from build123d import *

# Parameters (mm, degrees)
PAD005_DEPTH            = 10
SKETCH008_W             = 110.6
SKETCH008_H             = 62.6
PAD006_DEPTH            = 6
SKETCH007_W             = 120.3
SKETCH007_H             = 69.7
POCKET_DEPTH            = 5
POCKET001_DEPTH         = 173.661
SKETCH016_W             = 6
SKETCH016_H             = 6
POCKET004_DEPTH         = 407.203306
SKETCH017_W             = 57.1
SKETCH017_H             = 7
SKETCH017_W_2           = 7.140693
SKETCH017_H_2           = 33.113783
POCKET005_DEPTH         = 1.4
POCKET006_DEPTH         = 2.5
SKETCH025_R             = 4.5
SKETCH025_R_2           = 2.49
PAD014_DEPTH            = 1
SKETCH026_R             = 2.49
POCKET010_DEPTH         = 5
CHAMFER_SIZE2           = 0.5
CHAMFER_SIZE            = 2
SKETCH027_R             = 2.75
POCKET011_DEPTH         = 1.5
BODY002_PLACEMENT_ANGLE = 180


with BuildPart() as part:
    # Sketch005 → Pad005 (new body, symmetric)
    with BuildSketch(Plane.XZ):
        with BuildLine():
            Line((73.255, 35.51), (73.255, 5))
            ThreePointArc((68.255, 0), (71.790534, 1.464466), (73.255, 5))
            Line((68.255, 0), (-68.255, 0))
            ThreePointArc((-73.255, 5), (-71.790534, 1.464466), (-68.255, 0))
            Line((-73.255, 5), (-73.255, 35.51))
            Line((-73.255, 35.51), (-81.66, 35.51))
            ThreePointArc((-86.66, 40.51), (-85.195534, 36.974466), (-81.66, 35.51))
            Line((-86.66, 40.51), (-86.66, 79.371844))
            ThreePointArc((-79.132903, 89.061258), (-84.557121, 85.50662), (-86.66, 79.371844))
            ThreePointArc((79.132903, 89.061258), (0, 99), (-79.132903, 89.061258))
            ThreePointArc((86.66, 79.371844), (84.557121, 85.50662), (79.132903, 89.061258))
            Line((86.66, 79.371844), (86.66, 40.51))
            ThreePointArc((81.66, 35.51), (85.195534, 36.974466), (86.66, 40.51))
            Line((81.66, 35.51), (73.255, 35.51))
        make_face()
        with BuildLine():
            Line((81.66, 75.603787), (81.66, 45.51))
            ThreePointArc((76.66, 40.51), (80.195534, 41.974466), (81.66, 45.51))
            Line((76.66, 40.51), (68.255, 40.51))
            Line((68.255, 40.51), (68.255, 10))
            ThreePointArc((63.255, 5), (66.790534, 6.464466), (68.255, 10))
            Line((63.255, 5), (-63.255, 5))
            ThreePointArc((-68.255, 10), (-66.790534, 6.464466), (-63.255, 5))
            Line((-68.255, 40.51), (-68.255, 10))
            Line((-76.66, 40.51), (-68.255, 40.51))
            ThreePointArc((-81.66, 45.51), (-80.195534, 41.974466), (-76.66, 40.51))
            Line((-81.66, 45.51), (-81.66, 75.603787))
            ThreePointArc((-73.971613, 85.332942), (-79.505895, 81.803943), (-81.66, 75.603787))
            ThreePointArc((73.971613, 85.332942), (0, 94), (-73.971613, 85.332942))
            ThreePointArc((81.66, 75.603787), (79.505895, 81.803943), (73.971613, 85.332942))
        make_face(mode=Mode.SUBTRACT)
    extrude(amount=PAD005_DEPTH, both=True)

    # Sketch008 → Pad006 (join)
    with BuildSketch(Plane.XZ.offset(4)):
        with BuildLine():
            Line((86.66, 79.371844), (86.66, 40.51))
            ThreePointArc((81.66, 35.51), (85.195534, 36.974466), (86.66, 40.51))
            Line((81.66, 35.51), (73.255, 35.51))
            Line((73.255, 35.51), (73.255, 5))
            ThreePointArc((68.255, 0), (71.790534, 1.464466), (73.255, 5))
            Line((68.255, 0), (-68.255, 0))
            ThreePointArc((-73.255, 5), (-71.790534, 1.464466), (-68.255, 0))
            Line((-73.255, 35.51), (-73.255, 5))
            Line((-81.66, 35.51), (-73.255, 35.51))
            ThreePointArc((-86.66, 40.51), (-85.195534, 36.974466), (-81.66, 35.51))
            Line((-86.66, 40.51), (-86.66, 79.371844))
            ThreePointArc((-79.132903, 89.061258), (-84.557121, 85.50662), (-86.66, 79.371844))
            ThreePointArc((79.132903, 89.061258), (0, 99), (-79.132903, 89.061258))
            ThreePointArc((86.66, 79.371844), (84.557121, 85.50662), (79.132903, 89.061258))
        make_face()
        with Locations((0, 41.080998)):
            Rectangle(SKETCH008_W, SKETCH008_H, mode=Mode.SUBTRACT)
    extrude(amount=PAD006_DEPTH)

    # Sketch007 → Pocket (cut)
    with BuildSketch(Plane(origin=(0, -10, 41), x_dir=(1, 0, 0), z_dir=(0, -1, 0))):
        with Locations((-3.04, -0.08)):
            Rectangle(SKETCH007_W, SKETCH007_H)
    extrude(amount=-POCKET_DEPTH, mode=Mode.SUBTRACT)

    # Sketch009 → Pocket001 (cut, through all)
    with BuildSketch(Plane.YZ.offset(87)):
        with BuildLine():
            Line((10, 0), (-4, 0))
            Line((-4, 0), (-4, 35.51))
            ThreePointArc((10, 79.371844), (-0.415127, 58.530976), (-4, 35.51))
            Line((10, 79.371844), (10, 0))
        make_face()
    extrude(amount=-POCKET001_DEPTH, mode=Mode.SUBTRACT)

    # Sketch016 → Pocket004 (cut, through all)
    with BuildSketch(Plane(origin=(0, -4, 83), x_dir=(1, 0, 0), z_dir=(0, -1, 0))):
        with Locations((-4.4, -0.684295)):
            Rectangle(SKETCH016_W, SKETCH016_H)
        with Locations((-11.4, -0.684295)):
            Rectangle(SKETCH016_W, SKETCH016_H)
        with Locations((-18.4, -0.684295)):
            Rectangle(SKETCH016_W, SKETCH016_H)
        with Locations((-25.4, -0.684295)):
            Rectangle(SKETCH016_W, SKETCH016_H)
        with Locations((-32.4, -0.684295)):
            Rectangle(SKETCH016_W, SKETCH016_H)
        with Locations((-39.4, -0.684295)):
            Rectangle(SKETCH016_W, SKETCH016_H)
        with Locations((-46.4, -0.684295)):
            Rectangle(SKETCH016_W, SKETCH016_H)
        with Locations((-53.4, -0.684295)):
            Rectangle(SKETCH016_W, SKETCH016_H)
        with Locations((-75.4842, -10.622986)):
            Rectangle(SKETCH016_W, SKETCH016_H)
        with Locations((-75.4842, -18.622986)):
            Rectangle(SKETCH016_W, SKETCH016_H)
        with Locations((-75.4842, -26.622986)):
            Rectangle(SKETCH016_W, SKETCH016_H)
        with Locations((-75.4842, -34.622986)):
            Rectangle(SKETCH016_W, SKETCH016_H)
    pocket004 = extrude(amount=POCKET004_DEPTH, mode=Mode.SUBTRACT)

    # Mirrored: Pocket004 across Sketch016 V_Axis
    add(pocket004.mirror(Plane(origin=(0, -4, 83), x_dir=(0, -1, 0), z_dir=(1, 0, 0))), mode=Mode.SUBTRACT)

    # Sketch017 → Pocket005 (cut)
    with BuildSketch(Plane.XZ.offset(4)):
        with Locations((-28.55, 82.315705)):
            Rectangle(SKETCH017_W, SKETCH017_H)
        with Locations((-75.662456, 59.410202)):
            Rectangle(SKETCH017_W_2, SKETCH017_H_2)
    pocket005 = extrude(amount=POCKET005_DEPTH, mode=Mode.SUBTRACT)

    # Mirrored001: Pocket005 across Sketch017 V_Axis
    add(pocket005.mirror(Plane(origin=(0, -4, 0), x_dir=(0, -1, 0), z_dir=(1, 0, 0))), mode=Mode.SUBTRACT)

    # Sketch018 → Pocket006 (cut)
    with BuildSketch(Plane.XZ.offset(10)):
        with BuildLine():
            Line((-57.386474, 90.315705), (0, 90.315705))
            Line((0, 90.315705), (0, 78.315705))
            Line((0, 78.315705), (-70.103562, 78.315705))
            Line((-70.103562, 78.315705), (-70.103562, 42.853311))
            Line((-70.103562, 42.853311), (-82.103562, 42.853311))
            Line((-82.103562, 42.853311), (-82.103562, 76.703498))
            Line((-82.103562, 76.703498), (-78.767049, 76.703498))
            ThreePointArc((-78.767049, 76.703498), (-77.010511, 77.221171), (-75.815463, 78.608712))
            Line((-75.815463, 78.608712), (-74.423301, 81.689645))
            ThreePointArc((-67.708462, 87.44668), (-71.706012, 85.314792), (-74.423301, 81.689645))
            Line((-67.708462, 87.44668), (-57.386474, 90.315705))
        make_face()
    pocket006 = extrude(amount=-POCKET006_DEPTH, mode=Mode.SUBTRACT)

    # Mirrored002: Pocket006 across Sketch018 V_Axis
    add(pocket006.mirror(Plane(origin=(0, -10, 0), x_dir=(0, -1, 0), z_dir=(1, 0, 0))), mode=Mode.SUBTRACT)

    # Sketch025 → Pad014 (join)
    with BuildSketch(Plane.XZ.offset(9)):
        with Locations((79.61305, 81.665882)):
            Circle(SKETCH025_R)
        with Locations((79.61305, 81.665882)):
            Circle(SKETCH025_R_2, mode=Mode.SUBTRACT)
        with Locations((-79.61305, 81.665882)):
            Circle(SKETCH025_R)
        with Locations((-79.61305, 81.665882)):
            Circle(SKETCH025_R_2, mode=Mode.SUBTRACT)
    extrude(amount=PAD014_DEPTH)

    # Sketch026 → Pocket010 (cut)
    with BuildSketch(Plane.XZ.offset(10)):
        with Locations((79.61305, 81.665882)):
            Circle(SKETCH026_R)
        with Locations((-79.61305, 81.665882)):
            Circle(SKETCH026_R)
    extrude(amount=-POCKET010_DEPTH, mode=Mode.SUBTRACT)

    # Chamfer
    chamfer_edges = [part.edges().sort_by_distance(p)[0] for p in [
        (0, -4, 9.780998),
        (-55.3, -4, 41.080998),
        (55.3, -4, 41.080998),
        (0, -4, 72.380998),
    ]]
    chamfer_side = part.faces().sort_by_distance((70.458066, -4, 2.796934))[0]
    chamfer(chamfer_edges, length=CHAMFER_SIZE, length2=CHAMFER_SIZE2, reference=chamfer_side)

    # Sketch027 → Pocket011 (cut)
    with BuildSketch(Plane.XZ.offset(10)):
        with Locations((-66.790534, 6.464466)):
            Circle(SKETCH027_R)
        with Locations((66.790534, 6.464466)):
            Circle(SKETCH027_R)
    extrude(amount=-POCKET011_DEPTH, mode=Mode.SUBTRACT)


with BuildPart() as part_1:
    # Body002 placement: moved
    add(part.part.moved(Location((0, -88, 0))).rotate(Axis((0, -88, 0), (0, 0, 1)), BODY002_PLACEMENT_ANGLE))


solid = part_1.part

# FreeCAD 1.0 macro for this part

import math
import FreeCAD as App
import Part
import Sketcher
from FreeCAD import Vector
Q = App.Units.Quantity


def edges_at(feature, points):
    """Names of the edges that pass closest to the given points."""
    edges = feature.Shape.Edges
    near = lambda p: min(range(len(edges)), key=lambda i: edges[i].distToShape(Part.Vertex(*p))[0])
    return sorted({f"Edge{near(p) + 1}" for p in points})

doc = App.newDocument("Part")
body = doc.addObject("PartDesign::Body", "Body")

# Sketch on XZ plane
sketch1 = doc.addObject("Sketcher::SketchObject", "Sketch")
body.addObject(sketch1)
sketch1.AttachmentSupport = (doc.XZ_Plane, [""])
sketch1.MapMode = "FlatFace"
sketch1.addGeometry([
    Part.LineSegment(Vector(73.255, 5, 0), Vector(73.255, 35.51, 0)),  # 0
    Part.LineSegment(Vector(73.255, 35.51, 0), Vector(81.66, 35.51, 0)),  # 1
    Part.ArcOfCircle(Part.Circle(Vector(81.66, 40.51, 0), Vector(0, 0, 1), 5), math.radians(-90.000004), math.radians(0.000004)),  # 2
    Part.LineSegment(Vector(86.66, 40.51, 0), Vector(86.66, 79.371844, 0)),  # 3
    Part.ArcOfCircle(Part.Circle(Vector(76.66, 79.371844, 0), Vector(0, 0, 1), 10), math.radians(0.000001), math.radians(75.682777)),  # 4
    Part.ArcOfCircle(Part.Circle(Vector(0, -221.000003, 0), Vector(0, 0, 1), 320.000003), math.radians(75.682775), math.radians(104.317225)),  # 5
    Part.ArcOfCircle(Part.Circle(Vector(-76.66, 79.371844, 0), Vector(0, 0, 1), 10), math.radians(104.317223), math.radians(179.999999)),  # 6
    Part.LineSegment(Vector(-86.66, 79.371844, 0), Vector(-86.66, 40.51, 0)),  # 7
    Part.ArcOfCircle(Part.Circle(Vector(-81.66, 40.51, 0), Vector(0, 0, 1), 5), math.radians(179.999996), math.radians(270.000004)),  # 8
    Part.LineSegment(Vector(-81.66, 35.51, 0), Vector(-73.255, 35.51, 0)),  # 9
    Part.LineSegment(Vector(-73.255, 35.51, 0), Vector(-73.255, 5, 0)),  # 10
    Part.ArcOfCircle(Part.Circle(Vector(-68.255, 5, 0), Vector(0, 0, 1), 5), math.radians(179.999996), math.radians(270.000004)),  # 11
    Part.LineSegment(Vector(-68.255, 0, 0), Vector(68.255, 0, 0)),  # 12
    Part.ArcOfCircle(Part.Circle(Vector(68.255, 5, 0), Vector(0, 0, 1), 5), math.radians(-90.000004), math.radians(0.000004)),  # 13
    Part.LineSegment(Vector(81.66, 75.603787, 0), Vector(81.66, 45.51, 0)),  # 14
    Part.ArcOfCircle(Part.Circle(Vector(76.66, 45.51, 0), Vector(0, 0, 1), 5), math.radians(-90.000004), math.radians(0.000004)),  # 15
    Part.LineSegment(Vector(76.66, 40.51, 0), Vector(68.255, 40.51, 0)),  # 16
    Part.LineSegment(Vector(68.255, 40.51, 0), Vector(68.255, 10, 0)),  # 17
    Part.ArcOfCircle(Part.Circle(Vector(63.255, 10, 0), Vector(0, 0, 1), 5), math.radians(-90.000004), math.radians(0.000004)),  # 18
    Part.LineSegment(Vector(63.255, 5, 0), Vector(-63.255, 5, 0)),  # 19
    Part.ArcOfCircle(Part.Circle(Vector(-63.255, 10, 0), Vector(0, 0, 1), 5), math.radians(179.999996), math.radians(270.000004)),  # 20
    Part.LineSegment(Vector(-68.255, 10, 0), Vector(-68.255, 40.51, 0)),  # 21
    Part.LineSegment(Vector(-68.255, 40.51, 0), Vector(-76.66, 40.51, 0)),  # 22
    Part.ArcOfCircle(Part.Circle(Vector(-76.66, 45.51, 0), Vector(0, 0, 1), 5), math.radians(179.999996), math.radians(270.000004)),  # 23
    Part.LineSegment(Vector(-81.66, 45.51, 0), Vector(-81.66, 75.603787, 0)),  # 24
    Part.ArcOfCircle(Part.Circle(Vector(-71.659999, 75.603787, 0), Vector(0, 0, 1), 10.000001), math.radians(103.365456), math.radians(180)),  # 25
    Part.ArcOfCircle(Part.Circle(Vector(0, -226.000018, 0), Vector(0, 0, 1), 320.000018), math.radians(76.634549), math.radians(103.365451)),  # 26
    Part.ArcOfCircle(Part.Circle(Vector(71.659999, 75.603787, 0), Vector(0, 0, 1), 10.000001), math.radians(0), math.radians(76.634544)),  # 27
], False)
sketch1.addConstraint([
    Sketcher.Constraint("Coincident", 0, 2, 1, 1),
    Sketcher.Constraint("Tangent", 1, 2, 2, 1),
    Sketcher.Constraint("Tangent", 2, 2, 3, 1),
    Sketcher.Constraint("Tangent", 3, 2, 4, 1),
    Sketcher.Constraint("Tangent", 4, 2, 5, 1),
    Sketcher.Constraint("Tangent", 5, 2, 6, 1),
    Sketcher.Constraint("Tangent", 6, 2, 7, 1),
    Sketcher.Constraint("Tangent", 7, 2, 8, 1),
    Sketcher.Constraint("Tangent", 8, 2, 9, 1),
    Sketcher.Constraint("Coincident", 9, 2, 10, 1),
    Sketcher.Constraint("Tangent", 10, 2, 11, 1),
    Sketcher.Constraint("Tangent", 11, 2, 12, 1),
    Sketcher.Constraint("Tangent", 12, 2, 13, 1),
    Sketcher.Constraint("Tangent", 13, 2, 0, 1),
    Sketcher.Constraint("Tangent", 14, 2, 15, 2),
    Sketcher.Constraint("Tangent", 15, 1, 16, 1),
    Sketcher.Constraint("Coincident", 16, 2, 17, 1),
    Sketcher.Constraint("Tangent", 17, 2, 18, 2),
    Sketcher.Constraint("Tangent", 18, 1, 19, 1),
    Sketcher.Constraint("Tangent", 19, 2, 20, 2),
    Sketcher.Constraint("Tangent", 20, 1, 21, 1),
    Sketcher.Constraint("Coincident", 21, 2, 22, 1),
    Sketcher.Constraint("Tangent", 22, 2, 23, 2),
    Sketcher.Constraint("Tangent", 23, 1, 24, 1),
    Sketcher.Constraint("Tangent", 24, 2, 25, 2),
    Sketcher.Constraint("Tangent", 25, 1, 26, 2),
    Sketcher.Constraint("Tangent", 26, 1, 27, 2),
    Sketcher.Constraint("Tangent", 27, 1, 14, 1),
    Sketcher.Constraint("Vertical", 0),
    Sketcher.Constraint("Horizontal", 1),
    Sketcher.Constraint("Vertical", 3),
    Sketcher.Constraint("Vertical", 7),
    Sketcher.Constraint("Horizontal", 9),
    Sketcher.Constraint("Vertical", 10),
    Sketcher.Constraint("Horizontal", 12),
    Sketcher.Constraint("Vertical", 14),
    Sketcher.Constraint("Horizontal", 16),
    Sketcher.Constraint("Vertical", 17),
    Sketcher.Constraint("Horizontal", 19),
    Sketcher.Constraint("Vertical", 21),
    Sketcher.Constraint("Horizontal", 22),
    Sketcher.Constraint("Vertical", 24),
    Sketcher.Constraint("Equal", 4, 6),
    Sketcher.Constraint("Equal", 2, 8),
    Sketcher.Constraint("Equal", 8, 11),
    Sketcher.Constraint("Equal", 11, 13),
    Sketcher.Constraint("Equal", 13, 15),
    Sketcher.Constraint("Equal", 15, 18),
    Sketcher.Constraint("Equal", 18, 20),
    Sketcher.Constraint("Equal", 20, 23),
    Sketcher.Constraint("Equal", 6, 25),
    Sketcher.Constraint("Equal", 25, 27),
    Sketcher.Constraint("Symmetric", 11, 2, 12, 2, -1, 1),
    Sketcher.Constraint("Symmetric", 4, 3, 6, 3, -2),
    Sketcher.Constraint("Symmetric", 15, 3, 23, 3, -2),
    Sketcher.Constraint("PointOnObject", 26, 3, -2),
    Sketcher.Constraint("Horizontal", 2, 3, 8, 3),
    Sketcher.Constraint("Horizontal", 7, 2, 15, 1),
    Sketcher.Constraint("Horizontal", 13, 2, 18, 1),
    Sketcher.Constraint("Vertical", 4, 3, 15, 3),
    Sketcher.Constraint("Vertical", 1, 2, 14, 2),
    Sketcher.Constraint("Vertical", 12, 2, 16, 2),
    Sketcher.Constraint("Vertical", 11, 2, 20, 1),
    Sketcher.Constraint("Radius", 2, Q("5 mm")),
    Sketcher.Constraint("DistanceX", 12, 1, 12, 2, Q("136.51 mm")),
    Sketcher.Constraint("DistanceY", 0, 1, 0, 2, Q("30.51 mm")),
    Sketcher.Constraint("DistanceX", 1, 1, 1, 2, Q("8.405 mm")),
    Sketcher.Constraint("Radius", 5, Q("320.000003 mm")),
    Sketcher.Constraint("Radius", 26, Q("320.000018 mm")),
    Sketcher.Constraint("DistanceY", 6, 3, 25, 1, Q("5.961098 mm")),
    Sketcher.Constraint("DistanceY", 3, 1, 3, 2, Q("38.861844 mm")),
])
pad1 = doc.addObject("PartDesign::Pad", "Pad")
body.addObject(pad1)
pad1.Profile = sketch1
pad1.Length = 20
pad1.Midplane = True

# Sketch on XZ plane
sketch2 = doc.addObject("Sketcher::SketchObject", "Sketch001")
body.addObject(sketch2)
sketch2.AttachmentSupport = (doc.XZ_Plane, [""])
sketch2.MapMode = "FlatFace"
sketch2.AttachmentOffset = App.Placement(Vector(0, 0, 4), App.Rotation())
sketch2.addGeometry([
    Part.LineSegment(Vector(86.66, 40.51, 0), Vector(86.66, 79.371844, 0)),  # 0
    Part.ArcOfCircle(Part.Circle(Vector(76.66, 79.371844, 0), Vector(0, 0, 1), 10), math.radians(0.000001), math.radians(75.682777)),  # 1
    Part.ArcOfCircle(Part.Circle(Vector(0, -221.000003, 0), Vector(0, 0, 1), 320.000003), math.radians(75.682775), math.radians(104.317225)),  # 2
    Part.ArcOfCircle(Part.Circle(Vector(-76.66, 79.371844, 0), Vector(0, 0, 1), 10), math.radians(104.317223), math.radians(179.999999)),  # 3
    Part.LineSegment(Vector(-86.66, 79.371844, 0), Vector(-86.66, 40.51, 0)),  # 4
    Part.ArcOfCircle(Part.Circle(Vector(-81.66, 40.51, 0), Vector(0, 0, 1), 5), math.radians(179.999996), math.radians(270.000004)),  # 5
    Part.LineSegment(Vector(-81.66, 35.51, 0), Vector(-73.255, 35.51, 0)),  # 6
    Part.LineSegment(Vector(-73.255, 35.51, 0), Vector(-73.255, 5, 0)),  # 7
    Part.ArcOfCircle(Part.Circle(Vector(-68.255, 5, 0), Vector(0, 0, 1), 5), math.radians(179.999996), math.radians(270.000004)),  # 8
    Part.LineSegment(Vector(-68.255, 0, 0), Vector(68.255, 0, 0)),  # 9
    Part.ArcOfCircle(Part.Circle(Vector(68.255, 5, 0), Vector(0, 0, 1), 5), math.radians(-90.000004), math.radians(0.000004)),  # 10
    Part.LineSegment(Vector(73.255, 5, 0), Vector(73.255, 35.51, 0)),  # 11
    Part.LineSegment(Vector(73.255, 35.51, 0), Vector(81.66, 35.51, 0)),  # 12
    Part.ArcOfCircle(Part.Circle(Vector(81.66, 40.51, 0), Vector(0, 0, 1), 5), math.radians(-90.000004), math.radians(0.000004)),  # 13
    Part.LineSegment(Vector(-55.3, 9.780998, 0), Vector(-55.3, 72.380998, 0)),  # 14
    Part.LineSegment(Vector(-55.3, 72.380998, 0), Vector(55.3, 72.380998, 0)),  # 15
    Part.LineSegment(Vector(55.3, 72.380998, 0), Vector(55.3, 9.780998, 0)),  # 16
    Part.LineSegment(Vector(55.3, 9.780998, 0), Vector(-55.3, 9.780998, 0)),  # 17
], False)
sketch2.addConstraint([
    Sketcher.Constraint("Tangent", 0, 2, 1, 1),
    Sketcher.Constraint("Tangent", 1, 2, 2, 1),
    Sketcher.Constraint("Tangent", 2, 2, 3, 1),
    Sketcher.Constraint("Tangent", 3, 2, 4, 1),
    Sketcher.Constraint("Tangent", 4, 2, 5, 1),
    Sketcher.Constraint("Tangent", 5, 2, 6, 1),
    Sketcher.Constraint("Coincident", 6, 2, 7, 1),
    Sketcher.Constraint("Tangent", 7, 2, 8, 1),
    Sketcher.Constraint("Tangent", 8, 2, 9, 1),
    Sketcher.Constraint("Tangent", 9, 2, 10, 1),
    Sketcher.Constraint("Tangent", 10, 2, 11, 1),
    Sketcher.Constraint("Coincident", 11, 2, 12, 1),
    Sketcher.Constraint("Tangent", 12, 2, 13, 1),
    Sketcher.Constraint("Tangent", 13, 2, 0, 1),
    Sketcher.Constraint("Coincident", 14, 2, 15, 1),
    Sketcher.Constraint("Coincident", 15, 2, 16, 1),
    Sketcher.Constraint("Coincident", 16, 2, 17, 1),
    Sketcher.Constraint("Coincident", 17, 2, 14, 1),
    Sketcher.Constraint("Vertical", 0),
    Sketcher.Constraint("Vertical", 4),
    Sketcher.Constraint("Horizontal", 6),
    Sketcher.Constraint("Vertical", 7),
    Sketcher.Constraint("Horizontal", 9),
    Sketcher.Constraint("Vertical", 11),
    Sketcher.Constraint("Horizontal", 12),
    Sketcher.Constraint("Vertical", 14),
    Sketcher.Constraint("Horizontal", 15),
    Sketcher.Constraint("Vertical", 16),
    Sketcher.Constraint("Horizontal", 17),
    Sketcher.Constraint("Equal", 1, 3),
    Sketcher.Constraint("Equal", 5, 8),
    Sketcher.Constraint("Equal", 8, 10),
    Sketcher.Constraint("Equal", 10, 13),
    Sketcher.Constraint("Symmetric", 8, 2, 9, 2, -1, 1),
    Sketcher.Constraint("Symmetric", 1, 3, 3, 3, -2),
    Sketcher.Constraint("Horizontal", 5, 3, 13, 3),
    Sketcher.Constraint("Radius", 1, Q("10 mm")),
    Sketcher.Constraint("Radius", 5, Q("5 mm")),
    Sketcher.Constraint("DistanceX", 15, 1, 15, 2, Q("110.6 mm")),
    Sketcher.Constraint("DistanceY", 14, 1, 14, 2, Q("62.6 mm")),
    Sketcher.Constraint("DistanceX", 9, 1, 9, 2, Q("136.51 mm")),
    Sketcher.Constraint("DistanceY", 7, 2, 7, 1, Q("30.51 mm")),
    Sketcher.Constraint("DistanceX", 14, 2, -1, 1, Q("55.3 mm")),
    Sketcher.Constraint("DistanceX", 6, 1, 6, 2, Q("8.405 mm")),
    Sketcher.Constraint("DistanceY", -1, 1, 14, 2, Q("72.380998 mm")),
    Sketcher.Constraint("Radius", 2, Q("320.000003 mm")),
    Sketcher.Constraint("DistanceY", 0, 1, 0, 2, Q("38.861844 mm")),
])
pad2 = doc.addObject("PartDesign::Pad", "Pad001")
body.addObject(pad2)
pad2.Profile = sketch2
pad2.Length = 6

# Sketch on XZ plane
sketch3 = doc.addObject("Sketcher::SketchObject", "Sketch002")
body.addObject(sketch3)
sketch3.AttachmentSupport = (doc.XZ_Plane, [""])
sketch3.MapMode = "FlatFace"
sketch3.AttachmentOffset = App.Placement(Vector(0, 0, 10), App.Rotation())
sketch3.addGeometry([
    Part.LineSegment(Vector(-63.19, 75.77, 0), Vector(-63.19, 6.07, 0)),
    Part.LineSegment(Vector(-63.19, 6.07, 0), Vector(57.11, 6.07, 0)),
    Part.LineSegment(Vector(57.11, 6.07, 0), Vector(57.11, 75.77, 0)),
    Part.LineSegment(Vector(57.11, 75.77, 0), Vector(-63.19, 75.77, 0)),
], False)
sketch3.addConstraint([
    Sketcher.Constraint("Coincident", 0, 2, 1, 1),
    Sketcher.Constraint("Coincident", 1, 2, 2, 1),
    Sketcher.Constraint("Coincident", 2, 2, 3, 1),
    Sketcher.Constraint("Coincident", 3, 2, 0, 1),
    Sketcher.Constraint("Vertical", 0),
    Sketcher.Constraint("Horizontal", 1),
    Sketcher.Constraint("Vertical", 2),
    Sketcher.Constraint("Horizontal", 3),
    Sketcher.Constraint("DistanceX", 1, 1, 1, 2, Q("120.3 mm")),
    Sketcher.Constraint("DistanceY", 0, 2, 0, 1, Q("69.7 mm")),
    Sketcher.Constraint("DistanceX", 0, 2, -1, 1, Q("63.19 mm")),
    Sketcher.Constraint("DistanceY", -1, 1, 0, 2, Q("6.07 mm")),
])
pocket1 = doc.addObject("PartDesign::Pocket", "Pocket")
body.addObject(pocket1)
pocket1.Profile = sketch3
pocket1.Length = 5

# Sketch on YZ plane
sketch4 = doc.addObject("Sketcher::SketchObject", "Sketch003")
body.addObject(sketch4)
sketch4.AttachmentSupport = (doc.YZ_Plane, [""])
sketch4.MapMode = "FlatFace"
sketch4.AttachmentOffset = App.Placement(Vector(0, 0, 87), App.Rotation())
sketch4.addGeometry([
    Part.LineSegment(Vector(-4, 0, 0), Vector(10, 0, 0)),
    Part.LineSegment(Vector(10, 0, 0), Vector(10, 79.371844, 0)),
    Part.ArcOfCircle(Part.Circle(Vector(71.70934, 35.509998, 0), Vector(0, 0, 1), 75.70934), math.radians(144.595497), math.radians(179.999999)),
    Part.LineSegment(Vector(-4, 35.51, 0), Vector(-4, 0, 0)),
], False)
sketch4.addConstraint([
    Sketcher.Constraint("Coincident", 0, 2, 1, 1),
    Sketcher.Constraint("Coincident", 1, 2, 2, 1),
    Sketcher.Constraint("Tangent", 2, 2, 3, 1),
    Sketcher.Constraint("Coincident", 3, 2, 0, 1),
    Sketcher.Constraint("Horizontal", 0),
    Sketcher.Constraint("Vertical", 1),
    Sketcher.Constraint("Vertical", 3),
    Sketcher.Constraint("PointOnObject", 0, 2, -1),
    Sketcher.Constraint("DistanceX", 0, 1, 0, 2, Q("14 mm")),
    Sketcher.Constraint("DistanceX", -1, 1, 0, 2, Q("10 mm")),
    Sketcher.Constraint("DistanceY", 3, 2, 3, 1, Q("35.51 mm")),
    Sketcher.Constraint("Radius", 2, Q("75.70934 mm")),
])
pocket2 = doc.addObject("PartDesign::Pocket", "Pocket001")
body.addObject(pocket2)
pocket2.Profile = sketch4
pocket2.Type = "ThroughAll"

# Sketch on XZ plane
sketch5 = doc.addObject("Sketcher::SketchObject", "Sketch004")
body.addObject(sketch5)
sketch5.AttachmentSupport = (doc.XZ_Plane, [""])
sketch5.MapMode = "FlatFace"
sketch5.AttachmentOffset = App.Placement(Vector(0, 0, 4), App.Rotation())
sketch5.addGeometry([
    Part.LineSegment(Vector(-7.4, 85.315705, 0), Vector(-7.4, 79.315705, 0)),  # 0
    Part.LineSegment(Vector(-7.4, 79.315705, 0), Vector(-1.4, 79.315705, 0)),  # 1
    Part.LineSegment(Vector(-1.4, 79.315705, 0), Vector(-1.4, 85.315705, 0)),  # 2
    Part.LineSegment(Vector(-1.4, 85.315705, 0), Vector(-7.4, 85.315705, 0)),  # 3
    Part.LineSegment(Vector(-14.4, 85.315705, 0), Vector(-14.4, 79.315705, 0)),  # 4
    Part.LineSegment(Vector(-14.4, 79.315705, 0), Vector(-8.4, 79.315705, 0)),  # 5
    Part.LineSegment(Vector(-8.4, 79.315705, 0), Vector(-8.4, 85.315705, 0)),  # 6
    Part.LineSegment(Vector(-8.4, 85.315705, 0), Vector(-14.4, 85.315705, 0)),  # 7
    Part.LineSegment(Vector(-21.4, 85.315705, 0), Vector(-21.4, 79.315705, 0)),  # 8
    Part.LineSegment(Vector(-21.4, 79.315705, 0), Vector(-15.4, 79.315705, 0)),  # 9
    Part.LineSegment(Vector(-15.4, 79.315705, 0), Vector(-15.4, 85.315705, 0)),  # 10
    Part.LineSegment(Vector(-15.4, 85.315705, 0), Vector(-21.4, 85.315705, 0)),  # 11
    Part.LineSegment(Vector(-28.4, 85.315705, 0), Vector(-28.4, 79.315705, 0)),  # 12
    Part.LineSegment(Vector(-28.4, 79.315705, 0), Vector(-22.4, 79.315705, 0)),  # 13
    Part.LineSegment(Vector(-22.4, 79.315705, 0), Vector(-22.4, 85.315705, 0)),  # 14
    Part.LineSegment(Vector(-22.4, 85.315705, 0), Vector(-28.4, 85.315705, 0)),  # 15
    Part.LineSegment(Vector(-35.4, 85.315705, 0), Vector(-35.4, 79.315705, 0)),  # 16
    Part.LineSegment(Vector(-35.4, 79.315705, 0), Vector(-29.4, 79.315705, 0)),  # 17
    Part.LineSegment(Vector(-29.4, 79.315705, 0), Vector(-29.4, 85.315705, 0)),  # 18
    Part.LineSegment(Vector(-29.4, 85.315705, 0), Vector(-35.4, 85.315705, 0)),  # 19
    Part.LineSegment(Vector(-42.4, 85.315705, 0), Vector(-42.4, 79.315705, 0)),  # 20
    Part.LineSegment(Vector(-42.4, 79.315705, 0), Vector(-36.4, 79.315705, 0)),  # 21
    Part.LineSegment(Vector(-36.4, 79.315705, 0), Vector(-36.4, 85.315705, 0)),  # 22
    Part.LineSegment(Vector(-36.4, 85.315705, 0), Vector(-42.4, 85.315705, 0)),  # 23
    Part.LineSegment(Vector(-49.4, 85.315705, 0), Vector(-49.4, 79.315705, 0)),  # 24
    Part.LineSegment(Vector(-49.4, 79.315705, 0), Vector(-43.4, 79.315705, 0)),  # 25
    Part.LineSegment(Vector(-43.4, 79.315705, 0), Vector(-43.4, 85.315705, 0)),  # 26
    Part.LineSegment(Vector(-43.4, 85.315705, 0), Vector(-49.4, 85.315705, 0)),  # 27
    Part.LineSegment(Vector(-56.4, 85.315705, 0), Vector(-56.4, 79.315705, 0)),  # 28
    Part.LineSegment(Vector(-56.4, 79.315705, 0), Vector(-50.4, 79.315705, 0)),  # 29
    Part.LineSegment(Vector(-50.4, 79.315705, 0), Vector(-50.4, 85.315705, 0)),  # 30
    Part.LineSegment(Vector(-50.4, 85.315705, 0), Vector(-56.4, 85.315705, 0)),  # 31
    Part.LineSegment(Vector(-78.4842, 75.377014, 0), Vector(-78.4842, 69.377014, 0)),  # 32
    Part.LineSegment(Vector(-78.4842, 69.377014, 0), Vector(-72.4842, 69.377014, 0)),  # 33
    Part.LineSegment(Vector(-72.4842, 69.377014, 0), Vector(-72.4842, 75.377014, 0)),  # 34
    Part.LineSegment(Vector(-72.4842, 75.377014, 0), Vector(-78.4842, 75.377014, 0)),  # 35
    Part.LineSegment(Vector(-78.4842, 67.377014, 0), Vector(-78.4842, 61.377014, 0)),  # 36
    Part.LineSegment(Vector(-78.4842, 61.377014, 0), Vector(-72.4842, 61.377014, 0)),  # 37
    Part.LineSegment(Vector(-72.4842, 61.377014, 0), Vector(-72.4842, 67.377014, 0)),  # 38
    Part.LineSegment(Vector(-72.4842, 67.377014, 0), Vector(-78.4842, 67.377014, 0)),  # 39
    Part.LineSegment(Vector(-78.4842, 59.377014, 0), Vector(-78.4842, 53.377014, 0)),  # 40
    Part.LineSegment(Vector(-78.4842, 53.377014, 0), Vector(-72.4842, 53.377014, 0)),  # 41
    Part.LineSegment(Vector(-72.4842, 53.377014, 0), Vector(-72.4842, 59.377014, 0)),  # 42
    Part.LineSegment(Vector(-72.4842, 59.377014, 0), Vector(-78.4842, 59.377014, 0)),  # 43
    Part.LineSegment(Vector(-78.4842, 51.377014, 0), Vector(-78.4842, 45.377014, 0)),  # 44
    Part.LineSegment(Vector(-78.4842, 45.377014, 0), Vector(-72.4842, 45.377014, 0)),  # 45
    Part.LineSegment(Vector(-72.4842, 45.377014, 0), Vector(-72.4842, 51.377014, 0)),  # 46
    Part.LineSegment(Vector(-72.4842, 51.377014, 0), Vector(-78.4842, 51.377014, 0)),  # 47
], False)
sketch5.addConstraint([
    Sketcher.Constraint("Coincident", 0, 2, 1, 1),
    Sketcher.Constraint("Coincident", 1, 2, 2, 1),
    Sketcher.Constraint("Coincident", 2, 2, 3, 1),
    Sketcher.Constraint("Coincident", 3, 2, 0, 1),
    Sketcher.Constraint("Coincident", 4, 2, 5, 1),
    Sketcher.Constraint("Coincident", 5, 2, 6, 1),
    Sketcher.Constraint("Coincident", 6, 2, 7, 1),
    Sketcher.Constraint("Coincident", 7, 2, 4, 1),
    Sketcher.Constraint("Coincident", 8, 2, 9, 1),
    Sketcher.Constraint("Coincident", 9, 2, 10, 1),
    Sketcher.Constraint("Coincident", 10, 2, 11, 1),
    Sketcher.Constraint("Coincident", 11, 2, 8, 1),
    Sketcher.Constraint("Coincident", 12, 2, 13, 1),
    Sketcher.Constraint("Coincident", 13, 2, 14, 1),
    Sketcher.Constraint("Coincident", 14, 2, 15, 1),
    Sketcher.Constraint("Coincident", 15, 2, 12, 1),
    Sketcher.Constraint("Coincident", 16, 2, 17, 1),
    Sketcher.Constraint("Coincident", 17, 2, 18, 1),
    Sketcher.Constraint("Coincident", 18, 2, 19, 1),
    Sketcher.Constraint("Coincident", 19, 2, 16, 1),
    Sketcher.Constraint("Coincident", 20, 2, 21, 1),
    Sketcher.Constraint("Coincident", 21, 2, 22, 1),
    Sketcher.Constraint("Coincident", 22, 2, 23, 1),
    Sketcher.Constraint("Coincident", 23, 2, 20, 1),
    Sketcher.Constraint("Coincident", 24, 2, 25, 1),
    Sketcher.Constraint("Coincident", 25, 2, 26, 1),
    Sketcher.Constraint("Coincident", 26, 2, 27, 1),
    Sketcher.Constraint("Coincident", 27, 2, 24, 1),
    Sketcher.Constraint("Coincident", 28, 2, 29, 1),
    Sketcher.Constraint("Coincident", 29, 2, 30, 1),
    Sketcher.Constraint("Coincident", 30, 2, 31, 1),
    Sketcher.Constraint("Coincident", 31, 2, 28, 1),
    Sketcher.Constraint("Coincident", 32, 2, 33, 1),
    Sketcher.Constraint("Coincident", 33, 2, 34, 1),
    Sketcher.Constraint("Coincident", 34, 2, 35, 1),
    Sketcher.Constraint("Coincident", 35, 2, 32, 1),
    Sketcher.Constraint("Coincident", 36, 2, 37, 1),
    Sketcher.Constraint("Coincident", 37, 2, 38, 1),
    Sketcher.Constraint("Coincident", 38, 2, 39, 1),
    Sketcher.Constraint("Coincident", 39, 2, 36, 1),
    Sketcher.Constraint("Coincident", 40, 2, 41, 1),
    Sketcher.Constraint("Coincident", 41, 2, 42, 1),
    Sketcher.Constraint("Coincident", 42, 2, 43, 1),
    Sketcher.Constraint("Coincident", 43, 2, 40, 1),
    Sketcher.Constraint("Coincident", 44, 2, 45, 1),
    Sketcher.Constraint("Coincident", 45, 2, 46, 1),
    Sketcher.Constraint("Coincident", 46, 2, 47, 1),
    Sketcher.Constraint("Coincident", 47, 2, 44, 1),
    Sketcher.Constraint("Vertical", 0),
    Sketcher.Constraint("Horizontal", 1),
    Sketcher.Constraint("Vertical", 2),
    Sketcher.Constraint("Horizontal", 3),
    Sketcher.Constraint("Vertical", 4),
    Sketcher.Constraint("Horizontal", 5),
    Sketcher.Constraint("Vertical", 6),
    Sketcher.Constraint("Horizontal", 7),
    Sketcher.Constraint("Vertical", 8),
    Sketcher.Constraint("Horizontal", 9),
    Sketcher.Constraint("Vertical", 10),
    Sketcher.Constraint("Horizontal", 11),
    Sketcher.Constraint("Vertical", 12),
    Sketcher.Constraint("Horizontal", 13),
    Sketcher.Constraint("Vertical", 14),
    Sketcher.Constraint("Horizontal", 15),
    Sketcher.Constraint("Vertical", 16),
    Sketcher.Constraint("Horizontal", 17),
    Sketcher.Constraint("Vertical", 18),
    Sketcher.Constraint("Horizontal", 19),
    Sketcher.Constraint("Vertical", 20),
    Sketcher.Constraint("Horizontal", 21),
    Sketcher.Constraint("Vertical", 22),
    Sketcher.Constraint("Horizontal", 23),
    Sketcher.Constraint("Vertical", 24),
    Sketcher.Constraint("Horizontal", 25),
    Sketcher.Constraint("Vertical", 26),
    Sketcher.Constraint("Horizontal", 27),
    Sketcher.Constraint("Vertical", 28),
    Sketcher.Constraint("Horizontal", 29),
    Sketcher.Constraint("Vertical", 30),
    Sketcher.Constraint("Horizontal", 31),
    Sketcher.Constraint("Vertical", 32),
    Sketcher.Constraint("Horizontal", 33),
    Sketcher.Constraint("Vertical", 34),
    Sketcher.Constraint("Horizontal", 35),
    Sketcher.Constraint("Vertical", 36),
    Sketcher.Constraint("Horizontal", 37),
    Sketcher.Constraint("Vertical", 38),
    Sketcher.Constraint("Horizontal", 39),
    Sketcher.Constraint("Vertical", 40),
    Sketcher.Constraint("Horizontal", 41),
    Sketcher.Constraint("Vertical", 42),
    Sketcher.Constraint("Horizontal", 43),
    Sketcher.Constraint("Vertical", 44),
    Sketcher.Constraint("Horizontal", 45),
    Sketcher.Constraint("Vertical", 46),
    Sketcher.Constraint("Horizontal", 47),
    Sketcher.Constraint("Horizontal", 1, 2, 4, 2),
    Sketcher.Constraint("Horizontal", 3, 2, 6, 2),
    Sketcher.Constraint("Horizontal", 5, 2, 8, 2),
    Sketcher.Constraint("Horizontal", 7, 2, 10, 2),
    Sketcher.Constraint("Horizontal", 9, 2, 12, 2),
    Sketcher.Constraint("Horizontal", 11, 2, 14, 2),
    Sketcher.Constraint("Horizontal", 13, 2, 16, 2),
    Sketcher.Constraint("Horizontal", 15, 2, 18, 2),
    Sketcher.Constraint("Horizontal", 17, 2, 20, 2),
    Sketcher.Constraint("Horizontal", 19, 2, 22, 2),
    Sketcher.Constraint("Horizontal", 21, 2, 24, 2),
    Sketcher.Constraint("Horizontal", 23, 2, 26, 2),
    Sketcher.Constraint("Horizontal", 25, 2, 28, 2),
    Sketcher.Constraint("Horizontal", 27, 2, 30, 2),
    Sketcher.Constraint("Vertical", 35, 2, 36, 2),
    Sketcher.Constraint("Vertical", 34, 2, 37, 2),
    Sketcher.Constraint("Vertical", 39, 2, 40, 2),
    Sketcher.Constraint("Vertical", 38, 2, 41, 2),
    Sketcher.Constraint("Vertical", 43, 2, 44, 2),
    Sketcher.Constraint("Vertical", 42, 2, 45, 2),
    Sketcher.Constraint("Equal", 3, 5),
    Sketcher.Constraint("Equal", 7, 9),
    Sketcher.Constraint("Equal", 11, 13),
    Sketcher.Constraint("Equal", 15, 17),
    Sketcher.Constraint("Equal", 19, 21),
    Sketcher.Constraint("Equal", 23, 25),
    Sketcher.Constraint("Equal", 27, 29),
    Sketcher.Constraint("Equal", 31, 33),
    Sketcher.Constraint("Equal", 47, 0),
    Sketcher.Constraint("Equal", 30, 32),
    Sketcher.Constraint("Equal", 34, 36),
    Sketcher.Constraint("Equal", 38, 40),
    Sketcher.Constraint("Equal", 42, 44),
    Sketcher.Constraint("DistanceX", 1, 1, 1, 2, Q("6 mm")),
    Sketcher.Constraint("DistanceX", 4, 2, 0, 2, Q("7 mm")),
    Sketcher.Constraint("DistanceX", 8, 2, 4, 2, Q("7 mm")),
    Sketcher.Constraint("DistanceX", 12, 2, 8, 2, Q("7 mm")),
    Sketcher.Constraint("DistanceX", 16, 2, 12, 2, Q("7 mm")),
    Sketcher.Constraint("DistanceX", 20, 2, 16, 2, Q("7 mm")),
    Sketcher.Constraint("DistanceX", 24, 2, 20, 2, Q("7 mm")),
    Sketcher.Constraint("DistanceX", 28, 2, 24, 2, Q("7 mm")),
    Sketcher.Constraint("DistanceY", 36, 2, 32, 2, Q("8 mm")),
    Sketcher.Constraint("DistanceY", 40, 2, 36, 2, Q("8 mm")),
    Sketcher.Constraint("DistanceY", 44, 2, 40, 2, Q("8 mm")),
    Sketcher.Constraint("DistanceX", 0, 2, -1, 1, Q("7.4 mm")),
    Sketcher.Constraint("DistanceX", 32, 2, -1, 1, Q("78.4842 mm")),
    Sketcher.Constraint("DistanceY", 32, 2, 28, 2, Q("9.938691 mm")),
    Sketcher.Constraint("DistanceY", -1, 1, 0, 2, Q("79.315705 mm")),
])
pocket3 = doc.addObject("PartDesign::Pocket", "Pocket002")
body.addObject(pocket3)
pocket3.Profile = sketch5
pocket3.Type = "ThroughAll"
pocket3.Reversed = True
doc.recompute()

mirrored = doc.addObject("PartDesign::Mirrored", "Mirrored")
body.addObject(mirrored)
mirrored.Originals = [pocket3]
mirrored.MirrorPlane = (doc.YZ_Plane, [""])
body.Tip = mirrored

# Sketch on XZ plane
sketch6 = doc.addObject("Sketcher::SketchObject", "Sketch005")
body.addObject(sketch6)
sketch6.AttachmentSupport = (doc.XZ_Plane, [""])
sketch6.MapMode = "FlatFace"
sketch6.AttachmentOffset = App.Placement(Vector(0, 0, 4), App.Rotation())
sketch6.addGeometry([
    Part.LineSegment(Vector(-57.1, 85.815705, 0), Vector(-57.1, 78.815705, 0)),  # 0
    Part.LineSegment(Vector(-57.1, 78.815705, 0), Vector(0, 78.815705, 0)),  # 1
    Part.LineSegment(Vector(0, 78.815705, 0), Vector(0, 85.815705, 0)),  # 2
    Part.LineSegment(Vector(0, 85.815705, 0), Vector(-57.1, 85.815705, 0)),  # 3
    Part.LineSegment(Vector(-79.232803, 75.967094, 0), Vector(-79.232803, 42.85331, 0)),  # 4
    Part.LineSegment(Vector(-79.232803, 42.85331, 0), Vector(-72.09211, 42.85331, 0)),  # 5
    Part.LineSegment(Vector(-72.09211, 42.85331, 0), Vector(-72.09211, 75.967094, 0)),  # 6
    Part.LineSegment(Vector(-72.09211, 75.967094, 0), Vector(-79.232803, 75.967094, 0)),  # 7
], False)
sketch6.addConstraint([
    Sketcher.Constraint("Coincident", 0, 2, 1, 1),
    Sketcher.Constraint("Coincident", 1, 2, 2, 1),
    Sketcher.Constraint("Coincident", 2, 2, 3, 1),
    Sketcher.Constraint("Coincident", 3, 2, 0, 1),
    Sketcher.Constraint("Coincident", 4, 2, 5, 1),
    Sketcher.Constraint("Coincident", 5, 2, 6, 1),
    Sketcher.Constraint("Coincident", 6, 2, 7, 1),
    Sketcher.Constraint("Coincident", 7, 2, 4, 1),
    Sketcher.Constraint("Vertical", 0),
    Sketcher.Constraint("Horizontal", 1),
    Sketcher.Constraint("Vertical", 2),
    Sketcher.Constraint("Horizontal", 3),
    Sketcher.Constraint("Vertical", 4),
    Sketcher.Constraint("Horizontal", 5),
    Sketcher.Constraint("Vertical", 6),
    Sketcher.Constraint("Horizontal", 7),
    Sketcher.Constraint("PointOnObject", 1, 2, -2),
    Sketcher.Constraint("DistanceY", 0, 2, 0, 1, Q("7 mm")),
    Sketcher.Constraint("DistanceX", 1, 1, 1, 2, Q("57.1 mm")),
    Sketcher.Constraint("DistanceX", 5, 1, 5, 2, Q("7.140693 mm")),
    Sketcher.Constraint("DistanceY", 4, 2, 4, 1, Q("33.113783 mm")),
    Sketcher.Constraint("DistanceY", -1, 1, 4, 2, Q("42.85331 mm")),
    Sketcher.Constraint("DistanceX", 5, 2, -1, 1, Q("72.09211 mm")),
    Sketcher.Constraint("DistanceY", 6, 2, 0, 2, Q("2.848611 mm")),
])
pocket4 = doc.addObject("PartDesign::Pocket", "Pocket003")
body.addObject(pocket4)
pocket4.Profile = sketch6
pocket4.Length = 1.4
pocket4.Reversed = True
doc.recompute()

mirrored2 = doc.addObject("PartDesign::Mirrored", "Mirrored001")
body.addObject(mirrored2)
mirrored2.Originals = [pocket4]
mirrored2.MirrorPlane = (doc.YZ_Plane, [""])
body.Tip = mirrored2

# Sketch on XZ plane
sketch7 = doc.addObject("Sketcher::SketchObject", "Sketch006")
body.addObject(sketch7)
sketch7.AttachmentSupport = (doc.XZ_Plane, [""])
sketch7.MapMode = "FlatFace"
sketch7.AttachmentOffset = App.Placement(Vector(0, 0, 10), App.Rotation())
sketch7.addGeometry([
    Part.LineSegment(Vector(0, 90.315705, 0), Vector(-57.386474, 90.315705, 0)),  # 0
    Part.LineSegment(Vector(-57.386474, 90.315705, 0), Vector(-67.708462, 87.44668, 0)),  # 1
    Part.ArcOfCircle(Part.Circle(Vector(-64.913935, 77.39271, 0), Vector(0, 0, 1), 10.435118), math.radians(105.533409), math.radians(155.683529)),  # 2
    Part.LineSegment(Vector(-74.423301, 81.689645, 0), Vector(-75.815463, 78.608712, 0)),  # 3
    Part.ArcOfCircle(Part.Circle(Vector(-78.767049, 79.942425, 0), Vector(0, 0, 1), 3.238927), math.radians(-90.000003), math.radians(-24.316464)),  # 4
    Part.LineSegment(Vector(-78.767049, 76.703498, 0), Vector(-82.103562, 76.703498, 0)),  # 5
    Part.LineSegment(Vector(-82.103562, 76.703498, 0), Vector(-82.103562, 42.853311, 0)),  # 6
    Part.LineSegment(Vector(-82.103562, 42.853311, 0), Vector(-70.103562, 42.853311, 0)),  # 7
    Part.LineSegment(Vector(-70.103562, 42.853311, 0), Vector(-70.103562, 78.315705, 0)),  # 8
    Part.LineSegment(Vector(-70.103562, 78.315705, 0), Vector(0, 78.315705, 0)),  # 9
    Part.LineSegment(Vector(0, 78.315705, 0), Vector(0, 90.315705, 0)),  # 10
], False)
sketch7.addConstraint([
    Sketcher.Constraint("Coincident", 0, 2, 1, 1),
    Sketcher.Constraint("Tangent", 1, 2, 2, 1),
    Sketcher.Constraint("Tangent", 2, 2, 3, 1),
    Sketcher.Constraint("Tangent", 3, 2, 4, 2),
    Sketcher.Constraint("Tangent", 4, 1, 5, 1),
    Sketcher.Constraint("Coincident", 5, 2, 6, 1),
    Sketcher.Constraint("Coincident", 6, 2, 7, 1),
    Sketcher.Constraint("Coincident", 7, 2, 8, 1),
    Sketcher.Constraint("Coincident", 8, 2, 9, 1),
    Sketcher.Constraint("Coincident", 9, 2, 10, 1),
    Sketcher.Constraint("Coincident", 10, 2, 0, 1),
    Sketcher.Constraint("Horizontal", 0),
    Sketcher.Constraint("Horizontal", 5),
    Sketcher.Constraint("Vertical", 6),
    Sketcher.Constraint("Horizontal", 7),
    Sketcher.Constraint("Vertical", 8),
    Sketcher.Constraint("Horizontal", 9),
    Sketcher.Constraint("Vertical", 10),
    Sketcher.Constraint("PointOnObject", 9, 2, -2),
    Sketcher.Constraint("Equal", 7, 10),
    Sketcher.Constraint("DistanceX", 7, 1, 7, 2, Q("12 mm")),
    Sketcher.Constraint("Radius", 2, Q("10.435118 mm")),
    Sketcher.Constraint("Radius", 4, Q("3.238927 mm")),
    Sketcher.Constraint("DistanceY", 2, 3, 3, 2, Q("1.216002 mm")),
    Sketcher.Constraint("DistanceX", 3, 2, 1, 2, Q("8.107001 mm")),
    Sketcher.Constraint("DistanceX", 9, 1, 9, 2, Q("70.103562 mm")),
    Sketcher.Constraint("DistanceX", 2, 2, -1, 1, Q("74.423301 mm")),
    Sketcher.Constraint("DistanceX", 5, 2, 3, 2, Q("6.288099 mm")),
    Sketcher.Constraint("DistanceY", 6, 2, 3, 2, Q("35.755401 mm")),
    Sketcher.Constraint("DistanceX", 0, 2, 0, 1, Q("57.386474 mm")),
    Sketcher.Constraint("DistanceY", -1, 1, 2, 3, Q("77.39271 mm")),
])
pocket5 = doc.addObject("PartDesign::Pocket", "Pocket004")
body.addObject(pocket5)
pocket5.Profile = sketch7
pocket5.Length = 2.5
doc.recompute()

mirrored3 = doc.addObject("PartDesign::Mirrored", "Mirrored002")
body.addObject(mirrored3)
mirrored3.Originals = [pocket5]
mirrored3.MirrorPlane = (doc.YZ_Plane, [""])
body.Tip = mirrored3

# Sketch on XZ plane
sketch8 = doc.addObject("Sketcher::SketchObject", "Sketch007")
body.addObject(sketch8)
sketch8.AttachmentSupport = (doc.XZ_Plane, [""])
sketch8.MapMode = "FlatFace"
sketch8.AttachmentOffset = App.Placement(Vector(0, 0, 9), App.Rotation())
sketch8.addGeometry([
    Part.Circle(Vector(79.61305, 81.665882, 0), Vector(0, 0, 1), 4.5),
    Part.Circle(Vector(79.61305, 81.665882, 0), Vector(0, 0, 1), 2.49),
    Part.Circle(Vector(-79.61305, 81.665882, 0), Vector(0, 0, 1), 4.5),
    Part.Circle(Vector(-79.61305, 81.665882, 0), Vector(0, 0, 1), 2.49),
], False)
sketch8.addConstraint([
    Sketcher.Constraint("Coincident", 1, 3, 0, 3),
    Sketcher.Constraint("Coincident", 3, 3, 2, 3),
    Sketcher.Constraint("Equal", 0, 2),
    Sketcher.Constraint("Equal", 1, 3),
    Sketcher.Constraint("Symmetric", 0, 3, 2, 3, -2),
    Sketcher.Constraint("Diameter", 0, Q("9 mm")),
    Sketcher.Constraint("Diameter", 1, Q("4.98 mm")),
    Sketcher.Constraint("DistanceX", 2, 3, 0, 3, Q("159.2261 mm")),
    Sketcher.Constraint("DistanceY", -1, 1, 0, 3, Q("81.665882 mm")),
])
pad3 = doc.addObject("PartDesign::Pad", "Pad002")
body.addObject(pad3)
pad3.Profile = sketch8
pad3.Length = 1

# Sketch on XZ plane
sketch9 = doc.addObject("Sketcher::SketchObject", "Sketch008")
body.addObject(sketch9)
sketch9.AttachmentSupport = (doc.XZ_Plane, [""])
sketch9.MapMode = "FlatFace"
sketch9.AttachmentOffset = App.Placement(Vector(0, 0, 10), App.Rotation())
sketch9.addGeometry([
    Part.Circle(Vector(79.61305, 81.665882, 0), Vector(0, 0, 1), 2.49),
    Part.Circle(Vector(-79.61305, 81.665882, 0), Vector(0, 0, 1), 2.49),
], False)
sketch9.addConstraint([
    Sketcher.Constraint("Equal", 0, 1),
    Sketcher.Constraint("Symmetric", 0, 3, 1, 3, -2),
    Sketcher.Constraint("Diameter", 0, Q("4.98 mm")),
    Sketcher.Constraint("DistanceX", 1, 3, 0, 3, Q("159.2261 mm")),
    Sketcher.Constraint("DistanceY", -1, 1, 0, 3, Q("81.665882 mm")),
])
pocket6 = doc.addObject("PartDesign::Pocket", "Pocket005")
body.addObject(pocket6)
pocket6.Profile = sketch9
pocket6.Length = 5
doc.recompute()

chamfer = doc.addObject("PartDesign::Chamfer", "Chamfer")
body.addObject(chamfer)
chamfer.Base = (pocket6, edges_at(pocket6, [
    (0, -4, 9.781),
    (-55.3, -4, 41.081),
    (55.3, -4, 41.081),
    (0, -4, 72.381),
]))
chamfer.ChamferType = "Two distances"
chamfer.Size = 2
chamfer.Size2 = 0.5
chamfer.FlipDirection = True

# Sketch on XZ plane
sketch10 = doc.addObject("Sketcher::SketchObject", "Sketch009")
body.addObject(sketch10)
sketch10.AttachmentSupport = (doc.XZ_Plane, [""])
sketch10.MapMode = "FlatFace"
sketch10.AttachmentOffset = App.Placement(Vector(0, 0, 10), App.Rotation())
sketch10.addGeometry([
    Part.Circle(Vector(-66.790534, 6.464466, 0), Vector(0, 0, 1), 2.75),
    Part.Circle(Vector(66.790534, 6.464466, 0), Vector(0, 0, 1), 2.75),
], False)
sketch10.addConstraint([
    Sketcher.Constraint("Equal", 0, 1),
    Sketcher.Constraint("Symmetric", 0, 3, 1, 3, -2),
    Sketcher.Constraint("Diameter", 0, Q("5.5 mm")),
    Sketcher.Constraint("DistanceX", 0, 3, -1, 1, Q("66.790534 mm")),
    Sketcher.Constraint("DistanceY", -1, 1, 0, 3, Q("6.464466 mm")),
])
pocket7 = doc.addObject("PartDesign::Pocket", "Pocket006")
body.addObject(pocket7)
pocket7.Profile = sketch10
pocket7.Length = 1.5
body2 = doc.addObject("PartDesign::Body", "Body001")
doc.recompute()

body.Placement = App.Placement(Vector(0, -88, 0), App.Rotation(Vector(0, 0, 1), 180))
boolean = doc.addObject("PartDesign::Boolean", "Boolean")
body2.addObject(boolean)
boolean.Type = "Fuse"
boolean.addObjects([body])

doc.recompute()
